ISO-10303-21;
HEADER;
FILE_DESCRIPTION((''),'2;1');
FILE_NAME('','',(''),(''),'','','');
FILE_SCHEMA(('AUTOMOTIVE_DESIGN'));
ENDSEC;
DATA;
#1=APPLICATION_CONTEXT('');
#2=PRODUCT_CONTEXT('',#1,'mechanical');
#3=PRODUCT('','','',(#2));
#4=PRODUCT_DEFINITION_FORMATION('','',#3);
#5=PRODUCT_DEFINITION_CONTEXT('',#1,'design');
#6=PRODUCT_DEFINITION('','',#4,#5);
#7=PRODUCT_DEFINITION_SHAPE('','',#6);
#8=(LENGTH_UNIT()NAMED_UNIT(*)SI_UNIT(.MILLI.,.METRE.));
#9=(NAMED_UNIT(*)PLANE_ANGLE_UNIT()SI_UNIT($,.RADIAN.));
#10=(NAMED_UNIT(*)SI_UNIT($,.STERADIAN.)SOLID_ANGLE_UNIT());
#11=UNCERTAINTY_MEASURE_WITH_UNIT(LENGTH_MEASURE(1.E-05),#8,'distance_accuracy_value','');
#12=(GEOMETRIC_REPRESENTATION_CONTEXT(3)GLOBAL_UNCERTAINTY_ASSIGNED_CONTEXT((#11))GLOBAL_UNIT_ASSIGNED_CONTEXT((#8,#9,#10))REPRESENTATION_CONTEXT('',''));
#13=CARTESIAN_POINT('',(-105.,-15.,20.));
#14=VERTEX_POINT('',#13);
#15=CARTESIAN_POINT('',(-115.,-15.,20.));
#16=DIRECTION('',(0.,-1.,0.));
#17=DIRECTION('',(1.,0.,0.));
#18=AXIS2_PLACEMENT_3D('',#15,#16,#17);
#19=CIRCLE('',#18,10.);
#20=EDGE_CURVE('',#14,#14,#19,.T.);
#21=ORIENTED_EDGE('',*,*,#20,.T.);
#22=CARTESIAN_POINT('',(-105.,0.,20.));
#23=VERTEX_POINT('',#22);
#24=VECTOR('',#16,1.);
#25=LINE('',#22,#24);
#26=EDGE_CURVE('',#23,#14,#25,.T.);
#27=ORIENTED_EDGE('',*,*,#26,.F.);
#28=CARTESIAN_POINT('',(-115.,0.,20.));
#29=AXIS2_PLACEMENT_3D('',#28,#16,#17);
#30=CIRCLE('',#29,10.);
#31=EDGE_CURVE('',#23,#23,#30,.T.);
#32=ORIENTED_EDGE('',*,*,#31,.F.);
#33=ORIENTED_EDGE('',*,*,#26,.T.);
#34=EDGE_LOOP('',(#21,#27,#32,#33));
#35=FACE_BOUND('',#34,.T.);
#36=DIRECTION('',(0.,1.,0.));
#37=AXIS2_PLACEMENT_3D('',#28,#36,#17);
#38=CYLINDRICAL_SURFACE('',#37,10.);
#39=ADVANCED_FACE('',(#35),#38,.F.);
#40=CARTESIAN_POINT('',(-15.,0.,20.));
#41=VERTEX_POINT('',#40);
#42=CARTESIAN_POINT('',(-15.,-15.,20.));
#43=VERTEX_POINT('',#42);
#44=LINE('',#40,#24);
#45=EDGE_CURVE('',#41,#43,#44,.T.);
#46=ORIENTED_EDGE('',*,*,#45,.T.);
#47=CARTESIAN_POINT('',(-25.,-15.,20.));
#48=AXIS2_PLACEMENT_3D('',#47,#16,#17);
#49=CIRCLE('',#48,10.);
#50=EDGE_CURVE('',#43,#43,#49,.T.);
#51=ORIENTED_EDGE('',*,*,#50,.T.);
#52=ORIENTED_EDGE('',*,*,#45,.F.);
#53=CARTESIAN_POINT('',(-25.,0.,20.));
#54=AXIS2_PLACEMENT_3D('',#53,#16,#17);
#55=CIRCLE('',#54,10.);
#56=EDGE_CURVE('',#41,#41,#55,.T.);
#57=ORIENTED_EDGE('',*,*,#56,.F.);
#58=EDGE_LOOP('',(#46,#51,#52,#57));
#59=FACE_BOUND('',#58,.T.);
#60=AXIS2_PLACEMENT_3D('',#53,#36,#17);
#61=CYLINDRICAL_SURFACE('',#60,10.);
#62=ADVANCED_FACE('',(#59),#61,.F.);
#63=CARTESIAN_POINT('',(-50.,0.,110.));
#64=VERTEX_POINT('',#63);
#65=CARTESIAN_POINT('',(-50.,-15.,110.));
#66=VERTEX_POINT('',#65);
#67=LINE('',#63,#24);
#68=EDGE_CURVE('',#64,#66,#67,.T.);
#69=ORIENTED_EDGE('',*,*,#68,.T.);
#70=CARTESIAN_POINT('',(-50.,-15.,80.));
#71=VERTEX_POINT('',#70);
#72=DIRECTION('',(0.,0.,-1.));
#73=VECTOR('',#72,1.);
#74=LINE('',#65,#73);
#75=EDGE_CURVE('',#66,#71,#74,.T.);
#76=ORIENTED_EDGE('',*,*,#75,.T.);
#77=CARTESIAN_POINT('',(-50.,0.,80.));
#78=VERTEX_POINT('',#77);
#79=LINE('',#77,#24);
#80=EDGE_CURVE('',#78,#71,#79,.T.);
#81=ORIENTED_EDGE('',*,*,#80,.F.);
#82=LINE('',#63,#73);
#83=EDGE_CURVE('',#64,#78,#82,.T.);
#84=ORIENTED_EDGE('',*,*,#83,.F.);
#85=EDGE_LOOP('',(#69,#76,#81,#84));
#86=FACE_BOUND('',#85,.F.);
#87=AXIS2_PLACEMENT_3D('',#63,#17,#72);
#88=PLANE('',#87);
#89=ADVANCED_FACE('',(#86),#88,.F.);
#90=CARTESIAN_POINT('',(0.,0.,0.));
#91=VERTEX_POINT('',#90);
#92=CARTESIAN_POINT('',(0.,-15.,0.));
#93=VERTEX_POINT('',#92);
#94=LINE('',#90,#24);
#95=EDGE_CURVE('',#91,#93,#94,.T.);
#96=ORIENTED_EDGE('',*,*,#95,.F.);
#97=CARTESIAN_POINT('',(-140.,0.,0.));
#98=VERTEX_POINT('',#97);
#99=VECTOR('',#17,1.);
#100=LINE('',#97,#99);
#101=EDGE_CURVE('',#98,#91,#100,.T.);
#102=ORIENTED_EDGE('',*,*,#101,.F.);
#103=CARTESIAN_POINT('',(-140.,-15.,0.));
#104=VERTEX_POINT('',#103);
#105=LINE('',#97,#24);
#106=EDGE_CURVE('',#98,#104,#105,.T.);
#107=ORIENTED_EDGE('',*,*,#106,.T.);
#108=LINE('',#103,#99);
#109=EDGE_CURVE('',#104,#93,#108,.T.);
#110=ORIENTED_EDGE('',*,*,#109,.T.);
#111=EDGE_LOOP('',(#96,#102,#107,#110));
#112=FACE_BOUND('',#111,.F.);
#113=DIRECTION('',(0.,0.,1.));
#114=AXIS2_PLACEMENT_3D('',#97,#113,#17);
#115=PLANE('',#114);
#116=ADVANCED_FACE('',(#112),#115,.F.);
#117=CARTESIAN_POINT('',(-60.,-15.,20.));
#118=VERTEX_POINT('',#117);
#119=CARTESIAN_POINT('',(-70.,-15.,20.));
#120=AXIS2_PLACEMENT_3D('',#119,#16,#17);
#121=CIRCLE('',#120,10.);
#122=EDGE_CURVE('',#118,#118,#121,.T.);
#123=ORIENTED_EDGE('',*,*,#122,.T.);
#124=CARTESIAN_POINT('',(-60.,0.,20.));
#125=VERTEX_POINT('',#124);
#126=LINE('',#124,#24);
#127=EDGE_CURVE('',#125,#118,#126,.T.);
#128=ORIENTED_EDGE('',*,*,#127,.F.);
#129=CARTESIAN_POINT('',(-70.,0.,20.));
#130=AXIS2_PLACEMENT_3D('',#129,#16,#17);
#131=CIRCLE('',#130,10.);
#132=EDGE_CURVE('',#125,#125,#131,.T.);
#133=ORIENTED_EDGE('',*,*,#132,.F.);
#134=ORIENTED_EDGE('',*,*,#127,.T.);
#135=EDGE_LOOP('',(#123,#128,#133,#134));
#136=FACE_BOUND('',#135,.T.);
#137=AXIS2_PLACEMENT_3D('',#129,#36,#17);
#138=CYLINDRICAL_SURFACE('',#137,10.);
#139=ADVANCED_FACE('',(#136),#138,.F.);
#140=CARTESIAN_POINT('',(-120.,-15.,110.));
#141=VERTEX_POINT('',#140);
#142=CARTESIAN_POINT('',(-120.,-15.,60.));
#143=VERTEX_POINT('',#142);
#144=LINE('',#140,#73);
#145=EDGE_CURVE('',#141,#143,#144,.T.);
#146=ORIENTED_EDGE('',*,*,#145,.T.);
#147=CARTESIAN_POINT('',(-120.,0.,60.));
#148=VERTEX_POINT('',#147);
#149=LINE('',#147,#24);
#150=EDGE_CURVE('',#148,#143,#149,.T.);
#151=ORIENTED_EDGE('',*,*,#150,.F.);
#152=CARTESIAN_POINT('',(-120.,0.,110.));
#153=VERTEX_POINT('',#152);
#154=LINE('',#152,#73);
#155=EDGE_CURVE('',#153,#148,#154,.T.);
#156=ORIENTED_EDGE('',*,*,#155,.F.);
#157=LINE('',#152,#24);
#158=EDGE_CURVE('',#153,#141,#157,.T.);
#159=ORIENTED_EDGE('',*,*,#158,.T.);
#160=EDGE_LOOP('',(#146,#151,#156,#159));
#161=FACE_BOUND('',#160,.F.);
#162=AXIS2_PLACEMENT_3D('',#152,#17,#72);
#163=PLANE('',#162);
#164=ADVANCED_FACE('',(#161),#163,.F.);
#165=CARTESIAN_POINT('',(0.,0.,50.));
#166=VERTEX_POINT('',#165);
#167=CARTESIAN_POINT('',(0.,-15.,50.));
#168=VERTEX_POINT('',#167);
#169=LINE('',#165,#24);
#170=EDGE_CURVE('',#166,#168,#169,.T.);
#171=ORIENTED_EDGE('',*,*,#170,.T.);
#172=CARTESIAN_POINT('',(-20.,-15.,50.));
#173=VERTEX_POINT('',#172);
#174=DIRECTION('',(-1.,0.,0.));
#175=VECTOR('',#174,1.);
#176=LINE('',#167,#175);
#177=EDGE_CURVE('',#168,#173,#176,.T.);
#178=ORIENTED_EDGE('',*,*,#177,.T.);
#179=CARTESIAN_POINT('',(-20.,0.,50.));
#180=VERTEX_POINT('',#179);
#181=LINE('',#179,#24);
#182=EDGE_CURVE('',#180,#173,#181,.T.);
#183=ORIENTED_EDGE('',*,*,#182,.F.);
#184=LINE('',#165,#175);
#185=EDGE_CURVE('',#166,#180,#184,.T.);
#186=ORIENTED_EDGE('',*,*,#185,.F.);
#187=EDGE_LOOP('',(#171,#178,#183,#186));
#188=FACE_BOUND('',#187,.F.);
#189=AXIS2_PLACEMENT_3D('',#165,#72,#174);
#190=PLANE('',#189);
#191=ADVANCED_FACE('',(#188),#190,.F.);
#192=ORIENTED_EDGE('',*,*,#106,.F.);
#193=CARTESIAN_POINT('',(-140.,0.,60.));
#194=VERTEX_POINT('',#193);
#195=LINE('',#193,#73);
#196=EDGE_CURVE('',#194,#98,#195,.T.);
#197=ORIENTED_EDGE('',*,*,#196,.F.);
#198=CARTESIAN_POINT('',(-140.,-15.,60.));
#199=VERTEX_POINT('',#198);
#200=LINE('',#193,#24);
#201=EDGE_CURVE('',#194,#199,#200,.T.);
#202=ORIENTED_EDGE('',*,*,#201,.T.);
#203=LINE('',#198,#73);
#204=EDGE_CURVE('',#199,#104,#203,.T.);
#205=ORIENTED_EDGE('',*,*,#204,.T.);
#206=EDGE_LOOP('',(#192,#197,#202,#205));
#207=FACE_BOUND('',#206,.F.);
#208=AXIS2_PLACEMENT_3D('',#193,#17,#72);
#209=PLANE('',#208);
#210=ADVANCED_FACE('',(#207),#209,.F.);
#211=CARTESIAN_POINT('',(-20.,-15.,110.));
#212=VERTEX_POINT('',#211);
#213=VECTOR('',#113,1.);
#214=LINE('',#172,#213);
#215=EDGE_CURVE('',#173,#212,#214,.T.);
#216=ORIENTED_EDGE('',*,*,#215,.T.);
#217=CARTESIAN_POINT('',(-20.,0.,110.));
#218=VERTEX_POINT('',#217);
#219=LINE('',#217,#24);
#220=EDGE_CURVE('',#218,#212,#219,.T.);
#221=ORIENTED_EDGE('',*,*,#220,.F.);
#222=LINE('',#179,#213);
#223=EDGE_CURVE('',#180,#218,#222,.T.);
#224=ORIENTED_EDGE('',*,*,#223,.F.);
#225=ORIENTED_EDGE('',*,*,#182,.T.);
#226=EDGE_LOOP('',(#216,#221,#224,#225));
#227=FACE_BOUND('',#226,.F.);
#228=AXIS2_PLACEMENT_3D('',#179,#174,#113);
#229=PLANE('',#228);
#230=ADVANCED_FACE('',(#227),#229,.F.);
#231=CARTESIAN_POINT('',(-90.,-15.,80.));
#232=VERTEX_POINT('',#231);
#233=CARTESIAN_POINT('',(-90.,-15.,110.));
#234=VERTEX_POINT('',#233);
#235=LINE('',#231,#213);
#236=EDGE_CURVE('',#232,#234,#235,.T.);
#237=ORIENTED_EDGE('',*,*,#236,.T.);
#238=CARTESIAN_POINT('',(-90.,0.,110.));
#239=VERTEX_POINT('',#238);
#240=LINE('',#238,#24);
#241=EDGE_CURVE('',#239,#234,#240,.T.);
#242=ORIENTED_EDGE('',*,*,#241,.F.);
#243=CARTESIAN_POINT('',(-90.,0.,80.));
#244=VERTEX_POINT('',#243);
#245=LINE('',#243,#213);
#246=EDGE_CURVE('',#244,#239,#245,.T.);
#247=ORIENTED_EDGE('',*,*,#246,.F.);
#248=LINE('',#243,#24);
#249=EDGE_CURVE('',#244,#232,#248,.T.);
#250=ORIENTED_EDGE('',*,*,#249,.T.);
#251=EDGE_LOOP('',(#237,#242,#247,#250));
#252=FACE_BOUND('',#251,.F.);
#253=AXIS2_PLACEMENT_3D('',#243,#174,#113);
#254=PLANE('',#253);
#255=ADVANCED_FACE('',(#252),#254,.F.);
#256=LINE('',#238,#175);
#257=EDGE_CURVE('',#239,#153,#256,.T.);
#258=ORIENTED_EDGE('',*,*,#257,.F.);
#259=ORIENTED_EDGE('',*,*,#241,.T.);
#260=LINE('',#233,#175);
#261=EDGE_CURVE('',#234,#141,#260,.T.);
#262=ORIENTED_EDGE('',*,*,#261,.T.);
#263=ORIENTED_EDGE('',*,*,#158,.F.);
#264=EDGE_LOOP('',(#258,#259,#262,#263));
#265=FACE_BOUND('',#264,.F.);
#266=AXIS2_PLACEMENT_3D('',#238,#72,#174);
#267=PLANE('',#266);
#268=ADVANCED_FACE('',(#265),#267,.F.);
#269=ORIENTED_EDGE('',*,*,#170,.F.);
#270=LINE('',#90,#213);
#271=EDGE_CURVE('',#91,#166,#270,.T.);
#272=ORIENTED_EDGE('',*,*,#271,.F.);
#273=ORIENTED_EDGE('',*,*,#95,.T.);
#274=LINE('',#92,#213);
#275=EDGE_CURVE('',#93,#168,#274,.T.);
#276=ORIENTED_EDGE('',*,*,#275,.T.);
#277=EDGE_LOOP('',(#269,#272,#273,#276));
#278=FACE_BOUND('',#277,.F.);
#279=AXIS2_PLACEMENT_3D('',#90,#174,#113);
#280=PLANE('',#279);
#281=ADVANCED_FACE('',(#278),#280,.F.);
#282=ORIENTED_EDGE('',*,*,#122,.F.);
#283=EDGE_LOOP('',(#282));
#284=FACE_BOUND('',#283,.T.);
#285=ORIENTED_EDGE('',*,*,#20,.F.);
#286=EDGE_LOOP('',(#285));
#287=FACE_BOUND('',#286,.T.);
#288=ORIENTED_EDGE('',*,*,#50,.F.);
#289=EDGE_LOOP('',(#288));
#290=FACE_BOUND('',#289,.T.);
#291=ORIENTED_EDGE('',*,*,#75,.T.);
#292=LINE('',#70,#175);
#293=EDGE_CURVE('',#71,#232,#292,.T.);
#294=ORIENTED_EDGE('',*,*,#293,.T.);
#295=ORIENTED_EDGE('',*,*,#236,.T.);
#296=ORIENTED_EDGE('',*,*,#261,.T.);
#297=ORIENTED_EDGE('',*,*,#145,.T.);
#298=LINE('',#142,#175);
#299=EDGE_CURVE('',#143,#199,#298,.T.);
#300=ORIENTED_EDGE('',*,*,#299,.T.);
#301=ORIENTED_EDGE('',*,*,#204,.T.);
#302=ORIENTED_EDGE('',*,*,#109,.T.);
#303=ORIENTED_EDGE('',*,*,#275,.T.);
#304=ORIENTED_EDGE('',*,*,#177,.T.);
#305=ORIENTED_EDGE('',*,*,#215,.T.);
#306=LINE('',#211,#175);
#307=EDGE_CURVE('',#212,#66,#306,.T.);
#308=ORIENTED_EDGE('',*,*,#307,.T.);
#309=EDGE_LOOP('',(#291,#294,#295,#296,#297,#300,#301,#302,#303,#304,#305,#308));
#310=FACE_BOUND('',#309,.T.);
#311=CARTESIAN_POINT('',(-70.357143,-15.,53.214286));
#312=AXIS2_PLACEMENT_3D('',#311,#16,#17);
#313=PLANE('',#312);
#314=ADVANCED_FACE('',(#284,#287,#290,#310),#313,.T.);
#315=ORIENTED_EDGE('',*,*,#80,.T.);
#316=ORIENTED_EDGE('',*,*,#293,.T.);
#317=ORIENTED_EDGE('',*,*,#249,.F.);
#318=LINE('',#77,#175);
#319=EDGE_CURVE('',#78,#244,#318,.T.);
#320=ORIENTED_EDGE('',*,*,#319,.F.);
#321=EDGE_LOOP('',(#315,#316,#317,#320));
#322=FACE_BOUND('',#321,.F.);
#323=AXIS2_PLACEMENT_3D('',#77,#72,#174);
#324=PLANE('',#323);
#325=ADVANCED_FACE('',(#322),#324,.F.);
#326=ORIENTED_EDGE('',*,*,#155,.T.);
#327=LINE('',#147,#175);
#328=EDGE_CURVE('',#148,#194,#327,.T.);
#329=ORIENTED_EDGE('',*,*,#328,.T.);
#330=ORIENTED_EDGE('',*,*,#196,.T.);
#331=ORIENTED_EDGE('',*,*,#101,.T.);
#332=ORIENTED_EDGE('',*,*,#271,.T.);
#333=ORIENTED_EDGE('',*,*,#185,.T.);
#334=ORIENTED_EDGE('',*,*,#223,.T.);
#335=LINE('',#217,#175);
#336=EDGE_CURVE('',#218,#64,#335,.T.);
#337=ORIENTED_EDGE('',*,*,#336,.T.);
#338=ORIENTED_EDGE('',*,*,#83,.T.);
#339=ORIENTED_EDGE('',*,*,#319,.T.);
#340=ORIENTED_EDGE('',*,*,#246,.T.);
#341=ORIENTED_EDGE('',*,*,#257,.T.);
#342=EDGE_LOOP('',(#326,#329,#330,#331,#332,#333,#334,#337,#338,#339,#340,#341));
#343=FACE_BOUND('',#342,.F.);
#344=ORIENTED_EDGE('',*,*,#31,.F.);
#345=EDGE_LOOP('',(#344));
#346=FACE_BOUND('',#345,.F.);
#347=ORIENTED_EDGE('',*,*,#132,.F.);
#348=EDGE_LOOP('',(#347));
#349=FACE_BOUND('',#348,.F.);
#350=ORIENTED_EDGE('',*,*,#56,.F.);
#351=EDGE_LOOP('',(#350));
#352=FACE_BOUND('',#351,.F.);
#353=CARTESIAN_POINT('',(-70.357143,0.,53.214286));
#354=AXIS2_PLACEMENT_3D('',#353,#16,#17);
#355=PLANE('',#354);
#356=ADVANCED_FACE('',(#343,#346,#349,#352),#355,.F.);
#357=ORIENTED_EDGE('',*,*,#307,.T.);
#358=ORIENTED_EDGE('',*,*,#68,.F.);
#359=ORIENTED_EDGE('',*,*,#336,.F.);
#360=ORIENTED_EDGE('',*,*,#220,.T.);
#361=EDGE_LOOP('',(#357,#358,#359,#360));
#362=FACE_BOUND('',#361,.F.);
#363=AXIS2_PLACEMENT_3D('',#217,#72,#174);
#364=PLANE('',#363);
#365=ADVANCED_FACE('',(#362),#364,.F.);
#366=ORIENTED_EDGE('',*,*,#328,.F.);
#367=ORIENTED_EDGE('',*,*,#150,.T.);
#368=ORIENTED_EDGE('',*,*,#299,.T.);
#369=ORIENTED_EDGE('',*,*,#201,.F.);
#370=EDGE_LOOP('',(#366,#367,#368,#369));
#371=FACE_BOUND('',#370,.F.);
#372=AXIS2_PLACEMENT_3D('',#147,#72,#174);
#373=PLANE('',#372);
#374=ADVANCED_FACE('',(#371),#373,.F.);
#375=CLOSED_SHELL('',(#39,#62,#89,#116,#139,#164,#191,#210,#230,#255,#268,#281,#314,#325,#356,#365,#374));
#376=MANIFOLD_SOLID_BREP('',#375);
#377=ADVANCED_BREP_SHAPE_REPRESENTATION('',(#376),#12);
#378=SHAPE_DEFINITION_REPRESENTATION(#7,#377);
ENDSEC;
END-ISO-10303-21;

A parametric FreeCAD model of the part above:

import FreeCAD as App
import Part
import Sketcher

V = App.Vector
Q = App.Units.Quantity

doc = App.newDocument("Part")
body = doc.addObject("PartDesign::Body", "Body")

# Sketch on XZ plane
sketch1 = body.newObject("Sketcher::SketchObject", "Sketch")
sketch1.AttachmentSupport = (doc.getObject("XZ_Plane"), [""])
sketch1.MapMode = "FlatFace"
sketch1.addGeometry([
    Part.LineSegment(V(-140, 60, 0), V(-140, 0, 0)),  # 0
    Part.LineSegment(V(-140, 0, 0), V(0, 0, 0)),  # 1
    Part.LineSegment(V(0, 0, 0), V(0, 50, 0)),  # 2
    Part.LineSegment(V(0, 50, 0), V(-20, 50, 0)),  # 3
    Part.LineSegment(V(-20, 50, 0), V(-20, 110, 0)),  # 4
    Part.LineSegment(V(-20, 110, 0), V(-50, 110, 0)),  # 5
    Part.LineSegment(V(-50, 110, 0), V(-50, 80, 0)),  # 6
    Part.LineSegment(V(-50, 80, 0), V(-90, 80, 0)),  # 7
    Part.LineSegment(V(-90, 80, 0), V(-90, 110, 0)),  # 8
    Part.LineSegment(V(-90, 110, 0), V(-120, 110, 0)),  # 9
    Part.LineSegment(V(-120, 110, 0), V(-120, 60, 0)),  # 10
    Part.LineSegment(V(-120, 60, 0), V(-140, 60, 0)),  # 11
    Part.Circle(V(-115, 20, 0), V(0, 0, 1), 10),  # 12
    Part.Circle(V(-70, 20, 0), V(0, 0, 1), 10),  # 13
    Part.Circle(V(-25, 20, 0), V(0, 0, 1), 10),  # 14
], False)
sketch1.addConstraint([
    Sketcher.Constraint("Coincident", 0, 2, 1, 1),
    Sketcher.Constraint("Coincident", 1, 2, 2, 1),
    Sketcher.Constraint("Coincident", 2, 2, 3, 1),
    Sketcher.Constraint("Coincident", 3, 2, 4, 1),
    Sketcher.Constraint("Coincident", 4, 2, 5, 1),
    Sketcher.Constraint("Coincident", 5, 2, 6, 1),
    Sketcher.Constraint("Coincident", 6, 2, 7, 1),
    Sketcher.Constraint("Coincident", 7, 2, 8, 1),
    Sketcher.Constraint("Coincident", 8, 2, 9, 1),
    Sketcher.Constraint("Coincident", 9, 2, 10, 1),
    Sketcher.Constraint("Coincident", 10, 2, 11, 1),
    Sketcher.Constraint("Coincident", 11, 2, 0, 1),
    Sketcher.Constraint("Vertical", 0),
    Sketcher.Constraint("Horizontal", 1),
    Sketcher.Constraint("Vertical", 2),
    Sketcher.Constraint("Horizontal", 3),
    Sketcher.Constraint("Vertical", 4),
    Sketcher.Constraint("Horizontal", 5),
    Sketcher.Constraint("Vertical", 6),
    Sketcher.Constraint("Horizontal", 7),
    Sketcher.Constraint("Vertical", 8),
    Sketcher.Constraint("Horizontal", 9),
    Sketcher.Constraint("Vertical", 10),
    Sketcher.Constraint("Horizontal", 11),
    Sketcher.Constraint("Coincident", 1, 2, -1, 1),
    Sketcher.Constraint("Equal", 12, 13),
    Sketcher.Constraint("Equal", 13, 14),
    Sketcher.Constraint("Horizontal", 12, 3, 13, 3),
    Sketcher.Constraint("Horizontal", 13, 3, 14, 3),
    Sketcher.Constraint("Horizontal", 5, 2, 8, 2),
    Sketcher.Constraint("Equal", 5, 9),
    Sketcher.Constraint("Equal", 3, 11),
    Sketcher.Constraint("Equal", 0, 4),
    Sketcher.Constraint("Equal", 9, 6),
    Sketcher.Constraint("Diameter", 12, Q("20 mm")),
    Sketcher.Constraint("DistanceX", 1, 1, 1, 2, Q("140 mm")),
    Sketcher.Constraint("DistanceX", 3, 2, 3, 1, Q("20 mm")),
    Sketcher.Constraint("DistanceX", 5, 2, 5, 1, Q("30 mm")),
    Sketcher.Constraint("DistanceY", 0, 2, 0, 1, Q("60 mm")),
    Sketcher.Constraint("DistanceY", 2, 1, 2, 2, Q("50 mm")),
    Sketcher.Constraint("DistanceX", 12, 3, -1, 1, Q("115 mm")),
    Sketcher.Constraint("DistanceY", -1, 1, 12, 3, Q("20 mm")),
    Sketcher.Constraint("DistanceX", 13, 3, -1, 1, Q("70 mm")),
    Sketcher.Constraint("DistanceX", 14, 3, -1, 1, Q("25 mm")),
])
pad1 = body.newObject("PartDesign::Pad", "Pad")
pad1.Profile = sketch1
pad1.Length = 15

doc.recompute()
